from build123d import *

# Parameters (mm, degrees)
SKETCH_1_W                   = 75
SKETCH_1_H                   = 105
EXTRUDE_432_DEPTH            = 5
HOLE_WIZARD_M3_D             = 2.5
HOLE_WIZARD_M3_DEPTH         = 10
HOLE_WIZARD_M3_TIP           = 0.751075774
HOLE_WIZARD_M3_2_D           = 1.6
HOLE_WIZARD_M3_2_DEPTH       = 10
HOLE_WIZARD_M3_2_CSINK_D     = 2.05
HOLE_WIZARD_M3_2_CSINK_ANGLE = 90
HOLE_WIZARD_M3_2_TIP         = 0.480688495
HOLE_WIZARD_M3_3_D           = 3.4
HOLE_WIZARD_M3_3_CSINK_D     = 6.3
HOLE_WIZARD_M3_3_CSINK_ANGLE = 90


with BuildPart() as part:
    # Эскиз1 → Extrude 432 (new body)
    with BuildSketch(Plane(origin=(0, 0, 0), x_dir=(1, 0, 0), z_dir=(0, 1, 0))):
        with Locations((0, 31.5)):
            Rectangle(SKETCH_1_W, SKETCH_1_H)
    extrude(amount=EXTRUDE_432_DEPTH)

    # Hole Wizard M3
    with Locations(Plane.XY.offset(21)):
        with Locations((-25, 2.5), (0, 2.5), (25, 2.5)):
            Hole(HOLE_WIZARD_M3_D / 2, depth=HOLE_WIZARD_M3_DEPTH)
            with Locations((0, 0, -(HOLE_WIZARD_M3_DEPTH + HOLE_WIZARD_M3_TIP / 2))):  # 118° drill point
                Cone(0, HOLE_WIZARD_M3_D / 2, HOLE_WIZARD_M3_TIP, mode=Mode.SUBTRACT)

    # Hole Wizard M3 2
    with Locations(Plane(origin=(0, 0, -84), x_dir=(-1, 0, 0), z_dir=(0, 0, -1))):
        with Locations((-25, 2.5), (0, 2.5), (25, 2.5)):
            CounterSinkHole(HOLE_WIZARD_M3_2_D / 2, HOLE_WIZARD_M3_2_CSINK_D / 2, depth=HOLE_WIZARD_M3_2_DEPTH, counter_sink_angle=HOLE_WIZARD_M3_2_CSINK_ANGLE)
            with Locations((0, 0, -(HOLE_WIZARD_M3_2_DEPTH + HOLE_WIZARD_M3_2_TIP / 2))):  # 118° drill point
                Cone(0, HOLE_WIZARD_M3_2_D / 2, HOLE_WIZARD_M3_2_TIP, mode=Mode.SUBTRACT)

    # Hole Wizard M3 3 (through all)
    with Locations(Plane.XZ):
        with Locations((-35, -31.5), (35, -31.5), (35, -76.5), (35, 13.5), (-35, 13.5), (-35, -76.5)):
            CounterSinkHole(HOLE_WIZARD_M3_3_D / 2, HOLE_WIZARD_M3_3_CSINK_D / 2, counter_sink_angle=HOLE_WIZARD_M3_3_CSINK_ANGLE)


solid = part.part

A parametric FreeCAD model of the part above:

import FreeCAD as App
import Part
import Sketcher
from FreeCAD import Vector
Q = App.Units.Quantity


def add_polygon(sketch, points):
    """Adds a closed chain of lines whose ends are joined by coincident constraints."""
    first, n = sketch.GeometryCount, len(points)
    for a, b in zip(points, points[1:] + points[:1]):
        sketch.addGeometry(Part.LineSegment(App.Vector(*a, 0), App.Vector(*b, 0)), False)
    for i in range(n):
        sketch.addConstraint(Sketcher.Constraint("Coincident", first + i, 2, first + (i + 1) % n, 1))

doc = App.newDocument("Part")
params = doc.addObject("Spreadsheet::Sheet", "Params")
for row, (alias, value) in enumerate([
    ("sketch1_width", "75 mm"),
    ("sketch1_height", "105 mm"),
    ("pad1_length", "5 mm"),
    ("sketch2_diameter", "2.5 mm"),
    ("hole_diameter", "2.5 mm"),
    ("hole_depth", "10 mm"),
    ("sketch3_diameter", "1.6 mm"),
    ("hole2_diameter", "1.6 mm"),
    ("hole2_depth", "10 mm"),
    ("hole2_csink_diameter", "2.05 mm"),
    ("sketch4_diameter", "3.4 mm"),
    ("hole3_diameter", "3.4 mm"),
    ("hole3_csink_diameter", "6.3 mm"),
], start=1):
    params.set(f"A{row}", alias)
    params.set(f"B{row}", "=" + value)
    params.setAlias(f"B{row}", alias)

body = doc.addObject("PartDesign::Body", "Body")

# Sketch on XZ plane
sketch1 = doc.addObject("Sketcher::SketchObject", "Sketch")
body.addObject(sketch1)
sketch1.AttachmentSupport = (doc.XZ_Plane, [""])
sketch1.MapMode = "FlatFace"
add_polygon(sketch1, [(-38, -84), (-38, 21), (38, 21), (38, -84)])  # lines 0-3
sketch1.addConstraint([
    Sketcher.Constraint("Vertical", 0),
    Sketcher.Constraint("Horizontal", 1),
    Sketcher.Constraint("Vertical", 2),
    Sketcher.Constraint("Horizontal", 3),
    Sketcher.Constraint("DistanceX", 1, 1, 1, 2, Q("75 mm")),
    Sketcher.Constraint("DistanceY", 0, 1, 0, 2, Q("105 mm")),
    Sketcher.Constraint("DistanceY", -1, 1, 0, 2, Q("21 mm")),
    Sketcher.Constraint("DistanceX", 0, 2, -1, 1, Q("37.5 mm")),
])
sketch1.setExpression("Constraints[8]", "Params.sketch1_width")
sketch1.setExpression("Constraints[9]", "Params.sketch1_height")
pad1 = doc.addObject("PartDesign::Pad", "Pad")
body.addObject(pad1)
pad1.Profile = sketch1
pad1.setExpression("Length", "Params.pad1_length")
pad1.Reversed = True

# Sketch on XY plane
sketch2 = doc.addObject("Sketcher::SketchObject", "Sketch001")
body.addObject(sketch2)
sketch2.AttachmentSupport = (doc.XY_Plane, [""])
sketch2.MapMode = "FlatFace"
sketch2.AttachmentOffset = App.Placement(Vector(0, 0, 21), App.Rotation())
sketch2.addGeometry([
    Part.Circle(Vector(-25, 2.5, 0), Vector(0, 0, 1), 1.2),
    Part.Circle(Vector(0, 2.5, 0), Vector(0, 0, 1), 1.2),
    Part.Circle(Vector(25, 2.5, 0), Vector(0, 0, 1), 1.2),
], False)
sketch2.addConstraint([
    Sketcher.Constraint("Equal", 0, 1),
    Sketcher.Constraint("Equal", 1, 2),
    Sketcher.Constraint("Symmetric", 0, 3, 2, 3, -2),
    Sketcher.Constraint("PointOnObject", 1, 3, -2),
    Sketcher.Constraint("Horizontal", 0, 3, 1, 3),
    Sketcher.Constraint("Diameter", 0, Q("2.5 mm")),
    Sketcher.Constraint("DistanceX", 0, 3, -1, 1, Q("25 mm")),
    Sketcher.Constraint("DistanceY", -1, 1, 0, 3, Q("2.5 mm")),
])
sketch2.setExpression("Constraints[5]", "Params.sketch2_diameter")
doc.recompute()
hole = doc.addObject("PartDesign::Hole", "Hole")
body.addObject(hole)
hole.Profile = sketch2
hole.ThreadType = "None"
hole.setExpression("Diameter", "Params.hole_diameter")
hole.DepthType = "Dimension"
hole.setExpression("Depth", "Params.hole_depth")
hole.DrillPoint = "Angled"
hole.DrillPointAngle = 118

# Sketch on XY plane
sketch3 = doc.addObject("Sketcher::SketchObject", "Sketch002")
body.addObject(sketch3)
sketch3.AttachmentSupport = (doc.XY_Plane, [""])
sketch3.MapMode = "FlatFace"
sketch3.AttachmentOffset = App.Placement(Vector(0, 0, -84), App.Rotation())
sketch3.addGeometry([
    Part.Circle(Vector(25, 2.5, 0), Vector(0, 0, 1), 0.8),
    Part.Circle(Vector(0, 2.5, 0), Vector(0, 0, 1), 0.8),
    Part.Circle(Vector(-25, 2.5, 0), Vector(0, 0, 1), 0.8),
], False)
sketch3.addConstraint([
    Sketcher.Constraint("Equal", 0, 1),
    Sketcher.Constraint("Equal", 1, 2),
    Sketcher.Constraint("Symmetric", 0, 3, 2, 3, -2),
    Sketcher.Constraint("PointOnObject", 1, 3, -2),
    Sketcher.Constraint("Horizontal", 0, 3, 1, 3),
    Sketcher.Constraint("Diameter", 0, Q("1.6 mm")),
    Sketcher.Constraint("DistanceX", -1, 1, 0, 3, Q("25 mm")),
    Sketcher.Constraint("DistanceY", -1, 1, 0, 3, Q("2.5 mm")),
])
sketch3.setExpression("Constraints[5]", "Params.sketch3_diameter")
doc.recompute()
hole2 = doc.addObject("PartDesign::Hole", "Hole001")
body.addObject(hole2)
hole2.Profile = sketch3
hole2.ThreadType = "None"
hole2.setExpression("Diameter", "Params.hole2_diameter")
hole2.DepthType = "Dimension"
hole2.setExpression("Depth", "Params.hole2_depth")
hole2.DrillPoint = "Angled"
hole2.DrillPointAngle = 118
hole2.HoleCutType = "Countersink"
hole2.setExpression("HoleCutDiameter", "Params.hole2_csink_diameter")
hole2.HoleCutCountersinkAngle = 90
hole2.Reversed = True

# Sketch on XZ plane
sketch4 = doc.addObject("Sketcher::SketchObject", "Sketch003")
body.addObject(sketch4)
sketch4.AttachmentSupport = (doc.XZ_Plane, [""])
sketch4.MapMode = "FlatFace"
sketch4.addGeometry([
    Part.Circle(Vector(-35, -31.5, 0), Vector(0, 0, 1), 1.7),  # 0
    Part.Circle(Vector(35, -31.5, 0), Vector(0, 0, 1), 1.7),  # 1
    Part.Circle(Vector(35, -76.5, 0), Vector(0, 0, 1), 1.7),  # 2
    Part.Circle(Vector(35, 13.5, 0), Vector(0, 0, 1), 1.7),  # 3
    Part.Circle(Vector(-35, 13.5, 0), Vector(0, 0, 1), 1.7),  # 4
    Part.Circle(Vector(-35, -76.5, 0), Vector(0, 0, 1), 1.7),  # 5
], False)
sketch4.addConstraint([
    Sketcher.Constraint("Equal", 0, 1),
    Sketcher.Constraint("Equal", 1, 2),
    Sketcher.Constraint("Equal", 2, 3),
    Sketcher.Constraint("Equal", 3, 4),
    Sketcher.Constraint("Equal", 4, 5),
    Sketcher.Constraint("Symmetric", 0, 3, 1, 3, -2),
    Sketcher.Constraint("Symmetric", 3, 3, 4, 3, -2),
    Sketcher.Constraint("Symmetric", 2, 3, 5, 3, -2),
    Sketcher.Constraint("Vertical", 1, 3, 2, 3),
    Sketcher.Constraint("Vertical", 2, 3, 3, 3),
    Sketcher.Constraint("Diameter", 0, Q("3.4 mm")),
    Sketcher.Constraint("DistanceX", 0, 3, -1, 1, Q("35 mm")),
    Sketcher.Constraint("DistanceY", 2, 3, 1, 3, Q("45 mm")),
    Sketcher.Constraint("DistanceY", 1, 3, 3, 3, Q("45 mm")),
    Sketcher.Constraint("DistanceY", 0, 3, -1, 1, Q("31.5 mm")),
])
sketch4.setExpression("Constraints[10]", "Params.sketch4_diameter")
doc.recompute()
hole3 = doc.addObject("PartDesign::Hole", "Hole002")
body.addObject(hole3)
hole3.Profile = sketch4
hole3.ThreadType = "None"
hole3.setExpression("Diameter", "Params.hole3_diameter")
hole3.DepthType = "ThroughAll"
hole3.HoleCutType = "Countersink"
hole3.setExpression("HoleCutDiameter", "Params.hole3_csink_diameter")
hole3.HoleCutCountersinkAngle = 90

doc.recompute()
